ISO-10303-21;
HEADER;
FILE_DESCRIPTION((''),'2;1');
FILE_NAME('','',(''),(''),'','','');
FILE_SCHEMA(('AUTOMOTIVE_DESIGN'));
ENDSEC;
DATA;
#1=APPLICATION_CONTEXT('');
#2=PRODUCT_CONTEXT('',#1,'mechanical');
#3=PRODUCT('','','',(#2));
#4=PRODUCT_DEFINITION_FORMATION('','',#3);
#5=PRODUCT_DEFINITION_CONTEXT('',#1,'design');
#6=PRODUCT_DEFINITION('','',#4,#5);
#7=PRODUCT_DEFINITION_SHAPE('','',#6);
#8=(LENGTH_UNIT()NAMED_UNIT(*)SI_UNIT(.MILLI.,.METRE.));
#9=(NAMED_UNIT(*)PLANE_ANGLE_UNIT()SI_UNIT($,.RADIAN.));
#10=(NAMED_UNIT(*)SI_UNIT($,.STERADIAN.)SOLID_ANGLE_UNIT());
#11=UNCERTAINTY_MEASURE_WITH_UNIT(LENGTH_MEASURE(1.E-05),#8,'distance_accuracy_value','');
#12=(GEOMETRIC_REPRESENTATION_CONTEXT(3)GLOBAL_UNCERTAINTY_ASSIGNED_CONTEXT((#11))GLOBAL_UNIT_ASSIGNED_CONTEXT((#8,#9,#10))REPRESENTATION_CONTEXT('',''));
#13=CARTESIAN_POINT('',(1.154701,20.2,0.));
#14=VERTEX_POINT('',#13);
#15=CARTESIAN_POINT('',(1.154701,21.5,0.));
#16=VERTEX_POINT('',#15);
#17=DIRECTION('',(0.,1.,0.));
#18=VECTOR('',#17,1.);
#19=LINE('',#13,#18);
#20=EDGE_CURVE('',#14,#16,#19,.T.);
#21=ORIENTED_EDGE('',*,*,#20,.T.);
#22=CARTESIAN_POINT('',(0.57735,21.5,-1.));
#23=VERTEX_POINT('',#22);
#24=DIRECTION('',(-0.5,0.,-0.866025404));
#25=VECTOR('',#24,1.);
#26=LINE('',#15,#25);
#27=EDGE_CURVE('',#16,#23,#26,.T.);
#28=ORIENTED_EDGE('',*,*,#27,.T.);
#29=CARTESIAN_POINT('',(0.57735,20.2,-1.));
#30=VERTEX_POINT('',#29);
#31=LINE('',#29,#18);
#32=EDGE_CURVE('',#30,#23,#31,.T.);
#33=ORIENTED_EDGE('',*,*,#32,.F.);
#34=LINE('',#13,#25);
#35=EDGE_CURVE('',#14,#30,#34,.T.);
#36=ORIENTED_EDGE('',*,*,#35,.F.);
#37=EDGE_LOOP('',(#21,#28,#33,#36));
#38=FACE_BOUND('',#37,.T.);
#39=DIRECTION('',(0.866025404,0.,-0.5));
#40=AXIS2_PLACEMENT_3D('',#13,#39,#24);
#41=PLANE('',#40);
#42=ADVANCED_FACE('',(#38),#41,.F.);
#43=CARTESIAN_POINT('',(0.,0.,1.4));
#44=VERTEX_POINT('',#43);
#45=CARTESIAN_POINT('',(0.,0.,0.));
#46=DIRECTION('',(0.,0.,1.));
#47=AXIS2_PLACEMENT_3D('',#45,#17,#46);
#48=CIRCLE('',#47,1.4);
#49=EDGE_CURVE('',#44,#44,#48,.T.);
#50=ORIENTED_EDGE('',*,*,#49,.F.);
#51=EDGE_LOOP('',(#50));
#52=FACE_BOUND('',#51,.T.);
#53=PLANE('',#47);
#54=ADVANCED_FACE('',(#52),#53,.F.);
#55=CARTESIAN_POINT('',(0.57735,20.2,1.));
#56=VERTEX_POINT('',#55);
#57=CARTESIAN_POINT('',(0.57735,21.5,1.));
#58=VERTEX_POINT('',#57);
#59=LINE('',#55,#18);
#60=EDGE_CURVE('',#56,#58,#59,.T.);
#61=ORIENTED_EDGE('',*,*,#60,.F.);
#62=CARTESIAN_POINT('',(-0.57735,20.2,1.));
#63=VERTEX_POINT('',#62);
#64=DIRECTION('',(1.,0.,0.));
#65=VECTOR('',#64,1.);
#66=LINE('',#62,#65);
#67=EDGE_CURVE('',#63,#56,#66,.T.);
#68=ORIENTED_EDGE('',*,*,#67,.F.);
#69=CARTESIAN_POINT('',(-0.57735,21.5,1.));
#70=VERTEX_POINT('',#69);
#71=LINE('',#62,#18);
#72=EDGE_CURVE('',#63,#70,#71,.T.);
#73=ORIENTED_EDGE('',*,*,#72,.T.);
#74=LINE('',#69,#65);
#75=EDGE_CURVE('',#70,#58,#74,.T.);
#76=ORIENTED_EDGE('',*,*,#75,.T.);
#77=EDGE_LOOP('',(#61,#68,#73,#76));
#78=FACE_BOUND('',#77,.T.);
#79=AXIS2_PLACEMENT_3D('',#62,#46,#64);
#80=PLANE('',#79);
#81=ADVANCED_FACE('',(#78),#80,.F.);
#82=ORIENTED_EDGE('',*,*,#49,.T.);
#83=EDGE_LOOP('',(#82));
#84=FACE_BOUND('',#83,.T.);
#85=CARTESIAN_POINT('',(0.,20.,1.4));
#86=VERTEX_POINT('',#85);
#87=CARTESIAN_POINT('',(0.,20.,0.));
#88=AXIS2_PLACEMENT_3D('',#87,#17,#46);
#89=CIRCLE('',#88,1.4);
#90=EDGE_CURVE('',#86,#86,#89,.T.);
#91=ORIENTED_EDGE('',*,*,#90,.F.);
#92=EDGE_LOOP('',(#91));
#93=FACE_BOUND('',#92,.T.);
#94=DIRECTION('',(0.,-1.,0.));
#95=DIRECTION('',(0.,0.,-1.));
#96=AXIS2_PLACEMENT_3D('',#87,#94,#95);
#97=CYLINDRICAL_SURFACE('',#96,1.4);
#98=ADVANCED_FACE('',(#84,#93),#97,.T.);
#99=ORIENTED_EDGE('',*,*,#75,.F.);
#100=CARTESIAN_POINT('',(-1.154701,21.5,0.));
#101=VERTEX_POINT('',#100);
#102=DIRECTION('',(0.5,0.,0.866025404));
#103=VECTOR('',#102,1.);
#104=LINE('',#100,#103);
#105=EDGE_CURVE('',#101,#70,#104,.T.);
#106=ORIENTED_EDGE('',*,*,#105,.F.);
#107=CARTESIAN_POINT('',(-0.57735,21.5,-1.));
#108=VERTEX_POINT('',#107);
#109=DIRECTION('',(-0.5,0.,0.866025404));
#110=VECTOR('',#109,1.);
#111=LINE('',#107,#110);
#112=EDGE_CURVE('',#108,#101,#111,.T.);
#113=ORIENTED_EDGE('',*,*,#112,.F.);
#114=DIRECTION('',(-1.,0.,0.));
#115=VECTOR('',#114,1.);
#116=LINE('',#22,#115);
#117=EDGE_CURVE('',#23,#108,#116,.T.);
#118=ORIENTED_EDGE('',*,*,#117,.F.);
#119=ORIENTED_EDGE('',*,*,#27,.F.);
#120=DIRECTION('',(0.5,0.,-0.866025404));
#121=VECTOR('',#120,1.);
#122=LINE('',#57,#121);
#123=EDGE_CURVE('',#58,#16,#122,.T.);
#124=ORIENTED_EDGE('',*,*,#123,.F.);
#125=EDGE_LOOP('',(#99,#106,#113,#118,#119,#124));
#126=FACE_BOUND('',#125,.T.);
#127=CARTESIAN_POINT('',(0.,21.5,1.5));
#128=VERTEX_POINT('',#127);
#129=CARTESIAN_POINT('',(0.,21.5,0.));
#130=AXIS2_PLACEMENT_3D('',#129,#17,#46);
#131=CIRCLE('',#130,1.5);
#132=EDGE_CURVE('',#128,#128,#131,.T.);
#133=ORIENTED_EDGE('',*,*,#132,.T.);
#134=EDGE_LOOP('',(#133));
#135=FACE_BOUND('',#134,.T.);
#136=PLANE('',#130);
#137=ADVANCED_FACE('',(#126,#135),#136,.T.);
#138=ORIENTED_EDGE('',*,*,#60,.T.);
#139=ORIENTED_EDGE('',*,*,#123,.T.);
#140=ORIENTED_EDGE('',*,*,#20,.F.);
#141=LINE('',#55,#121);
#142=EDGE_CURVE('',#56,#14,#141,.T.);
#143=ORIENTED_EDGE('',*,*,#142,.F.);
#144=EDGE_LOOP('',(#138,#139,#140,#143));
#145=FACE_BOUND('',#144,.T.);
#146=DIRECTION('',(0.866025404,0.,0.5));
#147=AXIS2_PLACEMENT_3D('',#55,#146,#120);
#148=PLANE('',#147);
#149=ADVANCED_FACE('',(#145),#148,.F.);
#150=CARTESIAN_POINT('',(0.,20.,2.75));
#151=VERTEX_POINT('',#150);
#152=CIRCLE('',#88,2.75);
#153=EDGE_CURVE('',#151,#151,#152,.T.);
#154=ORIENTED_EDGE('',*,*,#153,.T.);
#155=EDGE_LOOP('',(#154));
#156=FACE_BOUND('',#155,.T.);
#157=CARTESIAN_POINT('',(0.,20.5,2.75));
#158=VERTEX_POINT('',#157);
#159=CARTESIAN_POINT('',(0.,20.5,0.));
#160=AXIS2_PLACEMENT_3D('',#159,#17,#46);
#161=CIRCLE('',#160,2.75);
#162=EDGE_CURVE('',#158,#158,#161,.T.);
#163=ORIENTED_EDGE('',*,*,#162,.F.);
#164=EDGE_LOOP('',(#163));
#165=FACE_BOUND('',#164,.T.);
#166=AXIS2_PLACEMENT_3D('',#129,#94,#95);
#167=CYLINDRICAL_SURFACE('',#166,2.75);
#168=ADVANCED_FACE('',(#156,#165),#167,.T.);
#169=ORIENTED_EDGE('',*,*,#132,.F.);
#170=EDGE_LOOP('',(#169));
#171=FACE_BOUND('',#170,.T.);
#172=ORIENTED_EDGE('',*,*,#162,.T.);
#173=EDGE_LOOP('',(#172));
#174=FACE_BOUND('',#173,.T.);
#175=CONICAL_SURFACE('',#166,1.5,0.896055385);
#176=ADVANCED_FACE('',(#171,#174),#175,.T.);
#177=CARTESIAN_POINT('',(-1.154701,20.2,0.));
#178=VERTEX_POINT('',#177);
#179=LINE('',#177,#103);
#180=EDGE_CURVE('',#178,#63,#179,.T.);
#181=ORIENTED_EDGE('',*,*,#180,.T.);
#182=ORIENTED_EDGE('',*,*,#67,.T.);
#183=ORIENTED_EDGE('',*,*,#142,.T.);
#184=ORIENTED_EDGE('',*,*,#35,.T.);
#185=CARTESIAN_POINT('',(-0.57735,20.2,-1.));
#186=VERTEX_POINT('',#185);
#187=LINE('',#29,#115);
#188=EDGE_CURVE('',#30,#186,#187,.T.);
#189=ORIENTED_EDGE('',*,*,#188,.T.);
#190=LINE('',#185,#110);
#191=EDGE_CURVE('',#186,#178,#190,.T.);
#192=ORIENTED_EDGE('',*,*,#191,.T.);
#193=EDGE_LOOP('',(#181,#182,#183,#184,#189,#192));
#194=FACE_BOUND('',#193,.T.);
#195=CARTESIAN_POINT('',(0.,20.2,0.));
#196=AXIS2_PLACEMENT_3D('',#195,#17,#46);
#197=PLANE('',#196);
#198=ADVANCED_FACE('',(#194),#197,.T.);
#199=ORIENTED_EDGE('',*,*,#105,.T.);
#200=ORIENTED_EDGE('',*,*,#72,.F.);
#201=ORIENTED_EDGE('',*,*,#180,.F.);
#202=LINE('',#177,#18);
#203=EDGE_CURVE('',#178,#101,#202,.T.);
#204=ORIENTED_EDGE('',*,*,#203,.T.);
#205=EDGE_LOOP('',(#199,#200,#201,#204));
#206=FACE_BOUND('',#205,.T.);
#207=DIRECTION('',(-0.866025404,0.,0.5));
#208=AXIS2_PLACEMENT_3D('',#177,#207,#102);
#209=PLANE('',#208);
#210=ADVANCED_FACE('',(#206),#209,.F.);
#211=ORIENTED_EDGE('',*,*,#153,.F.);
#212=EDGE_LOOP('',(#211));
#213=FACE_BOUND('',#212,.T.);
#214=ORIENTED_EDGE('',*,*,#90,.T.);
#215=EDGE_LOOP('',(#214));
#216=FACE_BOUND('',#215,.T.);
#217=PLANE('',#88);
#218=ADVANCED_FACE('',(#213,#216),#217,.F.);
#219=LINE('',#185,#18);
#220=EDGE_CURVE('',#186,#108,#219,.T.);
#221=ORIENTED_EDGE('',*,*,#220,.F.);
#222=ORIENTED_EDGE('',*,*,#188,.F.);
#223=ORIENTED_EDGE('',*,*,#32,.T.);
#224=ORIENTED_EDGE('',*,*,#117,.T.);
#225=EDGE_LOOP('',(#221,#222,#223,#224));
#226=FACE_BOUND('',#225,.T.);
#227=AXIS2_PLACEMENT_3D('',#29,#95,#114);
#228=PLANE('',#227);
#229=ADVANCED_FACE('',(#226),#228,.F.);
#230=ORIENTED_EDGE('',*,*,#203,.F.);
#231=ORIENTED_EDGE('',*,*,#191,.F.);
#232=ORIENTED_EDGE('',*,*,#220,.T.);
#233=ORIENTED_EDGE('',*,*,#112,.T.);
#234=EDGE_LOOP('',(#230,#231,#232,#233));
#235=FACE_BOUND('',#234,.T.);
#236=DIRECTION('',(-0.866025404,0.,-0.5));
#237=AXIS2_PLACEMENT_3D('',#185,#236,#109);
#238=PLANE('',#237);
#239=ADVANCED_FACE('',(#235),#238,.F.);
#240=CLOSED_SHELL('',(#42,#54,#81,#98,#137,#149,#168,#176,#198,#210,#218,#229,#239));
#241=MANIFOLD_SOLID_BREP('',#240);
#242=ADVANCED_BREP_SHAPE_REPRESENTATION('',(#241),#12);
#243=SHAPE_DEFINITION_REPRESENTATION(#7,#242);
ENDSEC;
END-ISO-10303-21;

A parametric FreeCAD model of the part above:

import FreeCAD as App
import Part
import Sketcher
Q = App.Units.Quantity


def add_polygon(sketch, points):
    """Adds a closed chain of lines whose ends are joined by coincident constraints."""
    first, n = sketch.GeometryCount, len(points)
    for a, b in zip(points, points[1:] + points[:1]):
        sketch.addGeometry(Part.LineSegment(App.Vector(*a, 0), App.Vector(*b, 0)), False)
    for i in range(n):
        sketch.addConstraint(Sketcher.Constraint("Coincident", first + i, 2, first + (i + 1) % n, 1))

doc = App.newDocument("Part")
body = doc.addObject("PartDesign::Body", "Body")

# Sketch on XZ plane
sketch1 = body.newObject("Sketcher::SketchObject", "Sketch")
sketch1.AttachmentSupport = (doc.getObject("XZ_Plane"), [""])
sketch1.MapMode = "FlatFace"
sketch1.addGeometry(Part.Circle(App.Vector(0, 0, 0), App.Vector(0, 0, 1), 1.4), False)
sketch1.addConstraint([
    Sketcher.Constraint("Coincident", 0, 3, -1, 1),
    Sketcher.Constraint("Diameter", 0, 2.8),
])
pad1 = body.newObject("PartDesign::Pad", "Pad")
pad1.Profile = sketch1
pad1.Length = 20
pad1.Reversed = True

# Sketch on XZ plane
sketch2 = body.newObject("Sketcher::SketchObject", "Sketch001")
sketch2.AttachmentSupport = (doc.getObject("XZ_Plane"), [""])
sketch2.MapMode = "FlatFace"
sketch2.AttachmentOffset = App.Placement(App.Vector(0, 0, -20), App.Rotation())
sketch2.addGeometry(Part.Circle(App.Vector(0, 0, 0), App.Vector(0, 0, 1), 2.8), False)
sketch2.addConstraint([
    Sketcher.Constraint("Coincident", 0, 3, -1, 1),
    Sketcher.Constraint("Diameter", 0, 5.5),
])
pad2 = body.newObject("PartDesign::Pad", "Pad001")
pad2.Profile = sketch2
pad2.Length = 1.5
pad2.Reversed = True

# Sketch on YZ plane
sketch3 = body.newObject("Sketcher::SketchObject", "Sketch002")
sketch3.AttachmentSupport = (doc.getObject("YZ_Plane"), [""])
sketch3.MapMode = "FlatFace"
add_polygon(sketch3, [(21.5, -1.5), (20.5, -2.8), (21.5, -2.8)])  # lines 0-2
sketch3.addConstraint([
    Sketcher.Constraint("Horizontal", 1),
    Sketcher.Constraint("Vertical", 2),
    Sketcher.Constraint("DistanceX", 1, 1, 1, 2, 1.0),
    Sketcher.Constraint("DistanceY", 2, 1, 2, 2, 1.25),
    Sketcher.Constraint("DistanceX", -1, 1, 0, 2, 20.5),
    Sketcher.Constraint("DistanceY", 2, 2, -1, 1, 1.5),
])
groove = body.newObject("PartDesign::Groove", "Groove")
groove.Profile = sketch3
groove.ReferenceAxis = (sketch3, ["H_Axis"])
groove.Angle = 360

# Sketch on XZ plane
sketch4 = body.newObject("Sketcher::SketchObject", "Sketch003")
sketch4.AttachmentSupport = (doc.getObject("XZ_Plane"), [""])
sketch4.MapMode = "FlatFace"
sketch4.AttachmentOffset = App.Placement(App.Vector(0, 0, -21.5), App.Rotation())
add_polygon(sketch4, [(1.2, 0), (0.6, -1), (-0.6, -1), (-1.2, 0), (-0.6, 1), (0.6, 1)])  # lines 0-5
sketch4.addConstraint([
    Sketcher.Constraint("Horizontal", 1),
    Sketcher.Constraint("Horizontal", 4),
    Sketcher.Constraint("Symmetric", 0, 2, 3, 2, -1, 1),
    Sketcher.Constraint("Symmetric", 2, 2, 5, 2, -1, 1),
    Sketcher.Constraint("PointOnObject", 2, 2, -1),
    Sketcher.Constraint("Parallel", 2, 5),
    Sketcher.Constraint("Vertical", 1, 2, 3, 2),
    Sketcher.Constraint("Angle", 0, Q("-120 deg")),
    Sketcher.Constraint("DistanceY", 0, 2, -1, 1, 1.0),
    Sketcher.Constraint("DistanceX", 1, 2, 1, 1, 1.154701),
])
pocket1 = body.newObject("PartDesign::Pocket", "Pocket")
pocket1.Profile = sketch4
pocket1.Length = 1.3
pocket1.Reversed = True

doc.recompute()
